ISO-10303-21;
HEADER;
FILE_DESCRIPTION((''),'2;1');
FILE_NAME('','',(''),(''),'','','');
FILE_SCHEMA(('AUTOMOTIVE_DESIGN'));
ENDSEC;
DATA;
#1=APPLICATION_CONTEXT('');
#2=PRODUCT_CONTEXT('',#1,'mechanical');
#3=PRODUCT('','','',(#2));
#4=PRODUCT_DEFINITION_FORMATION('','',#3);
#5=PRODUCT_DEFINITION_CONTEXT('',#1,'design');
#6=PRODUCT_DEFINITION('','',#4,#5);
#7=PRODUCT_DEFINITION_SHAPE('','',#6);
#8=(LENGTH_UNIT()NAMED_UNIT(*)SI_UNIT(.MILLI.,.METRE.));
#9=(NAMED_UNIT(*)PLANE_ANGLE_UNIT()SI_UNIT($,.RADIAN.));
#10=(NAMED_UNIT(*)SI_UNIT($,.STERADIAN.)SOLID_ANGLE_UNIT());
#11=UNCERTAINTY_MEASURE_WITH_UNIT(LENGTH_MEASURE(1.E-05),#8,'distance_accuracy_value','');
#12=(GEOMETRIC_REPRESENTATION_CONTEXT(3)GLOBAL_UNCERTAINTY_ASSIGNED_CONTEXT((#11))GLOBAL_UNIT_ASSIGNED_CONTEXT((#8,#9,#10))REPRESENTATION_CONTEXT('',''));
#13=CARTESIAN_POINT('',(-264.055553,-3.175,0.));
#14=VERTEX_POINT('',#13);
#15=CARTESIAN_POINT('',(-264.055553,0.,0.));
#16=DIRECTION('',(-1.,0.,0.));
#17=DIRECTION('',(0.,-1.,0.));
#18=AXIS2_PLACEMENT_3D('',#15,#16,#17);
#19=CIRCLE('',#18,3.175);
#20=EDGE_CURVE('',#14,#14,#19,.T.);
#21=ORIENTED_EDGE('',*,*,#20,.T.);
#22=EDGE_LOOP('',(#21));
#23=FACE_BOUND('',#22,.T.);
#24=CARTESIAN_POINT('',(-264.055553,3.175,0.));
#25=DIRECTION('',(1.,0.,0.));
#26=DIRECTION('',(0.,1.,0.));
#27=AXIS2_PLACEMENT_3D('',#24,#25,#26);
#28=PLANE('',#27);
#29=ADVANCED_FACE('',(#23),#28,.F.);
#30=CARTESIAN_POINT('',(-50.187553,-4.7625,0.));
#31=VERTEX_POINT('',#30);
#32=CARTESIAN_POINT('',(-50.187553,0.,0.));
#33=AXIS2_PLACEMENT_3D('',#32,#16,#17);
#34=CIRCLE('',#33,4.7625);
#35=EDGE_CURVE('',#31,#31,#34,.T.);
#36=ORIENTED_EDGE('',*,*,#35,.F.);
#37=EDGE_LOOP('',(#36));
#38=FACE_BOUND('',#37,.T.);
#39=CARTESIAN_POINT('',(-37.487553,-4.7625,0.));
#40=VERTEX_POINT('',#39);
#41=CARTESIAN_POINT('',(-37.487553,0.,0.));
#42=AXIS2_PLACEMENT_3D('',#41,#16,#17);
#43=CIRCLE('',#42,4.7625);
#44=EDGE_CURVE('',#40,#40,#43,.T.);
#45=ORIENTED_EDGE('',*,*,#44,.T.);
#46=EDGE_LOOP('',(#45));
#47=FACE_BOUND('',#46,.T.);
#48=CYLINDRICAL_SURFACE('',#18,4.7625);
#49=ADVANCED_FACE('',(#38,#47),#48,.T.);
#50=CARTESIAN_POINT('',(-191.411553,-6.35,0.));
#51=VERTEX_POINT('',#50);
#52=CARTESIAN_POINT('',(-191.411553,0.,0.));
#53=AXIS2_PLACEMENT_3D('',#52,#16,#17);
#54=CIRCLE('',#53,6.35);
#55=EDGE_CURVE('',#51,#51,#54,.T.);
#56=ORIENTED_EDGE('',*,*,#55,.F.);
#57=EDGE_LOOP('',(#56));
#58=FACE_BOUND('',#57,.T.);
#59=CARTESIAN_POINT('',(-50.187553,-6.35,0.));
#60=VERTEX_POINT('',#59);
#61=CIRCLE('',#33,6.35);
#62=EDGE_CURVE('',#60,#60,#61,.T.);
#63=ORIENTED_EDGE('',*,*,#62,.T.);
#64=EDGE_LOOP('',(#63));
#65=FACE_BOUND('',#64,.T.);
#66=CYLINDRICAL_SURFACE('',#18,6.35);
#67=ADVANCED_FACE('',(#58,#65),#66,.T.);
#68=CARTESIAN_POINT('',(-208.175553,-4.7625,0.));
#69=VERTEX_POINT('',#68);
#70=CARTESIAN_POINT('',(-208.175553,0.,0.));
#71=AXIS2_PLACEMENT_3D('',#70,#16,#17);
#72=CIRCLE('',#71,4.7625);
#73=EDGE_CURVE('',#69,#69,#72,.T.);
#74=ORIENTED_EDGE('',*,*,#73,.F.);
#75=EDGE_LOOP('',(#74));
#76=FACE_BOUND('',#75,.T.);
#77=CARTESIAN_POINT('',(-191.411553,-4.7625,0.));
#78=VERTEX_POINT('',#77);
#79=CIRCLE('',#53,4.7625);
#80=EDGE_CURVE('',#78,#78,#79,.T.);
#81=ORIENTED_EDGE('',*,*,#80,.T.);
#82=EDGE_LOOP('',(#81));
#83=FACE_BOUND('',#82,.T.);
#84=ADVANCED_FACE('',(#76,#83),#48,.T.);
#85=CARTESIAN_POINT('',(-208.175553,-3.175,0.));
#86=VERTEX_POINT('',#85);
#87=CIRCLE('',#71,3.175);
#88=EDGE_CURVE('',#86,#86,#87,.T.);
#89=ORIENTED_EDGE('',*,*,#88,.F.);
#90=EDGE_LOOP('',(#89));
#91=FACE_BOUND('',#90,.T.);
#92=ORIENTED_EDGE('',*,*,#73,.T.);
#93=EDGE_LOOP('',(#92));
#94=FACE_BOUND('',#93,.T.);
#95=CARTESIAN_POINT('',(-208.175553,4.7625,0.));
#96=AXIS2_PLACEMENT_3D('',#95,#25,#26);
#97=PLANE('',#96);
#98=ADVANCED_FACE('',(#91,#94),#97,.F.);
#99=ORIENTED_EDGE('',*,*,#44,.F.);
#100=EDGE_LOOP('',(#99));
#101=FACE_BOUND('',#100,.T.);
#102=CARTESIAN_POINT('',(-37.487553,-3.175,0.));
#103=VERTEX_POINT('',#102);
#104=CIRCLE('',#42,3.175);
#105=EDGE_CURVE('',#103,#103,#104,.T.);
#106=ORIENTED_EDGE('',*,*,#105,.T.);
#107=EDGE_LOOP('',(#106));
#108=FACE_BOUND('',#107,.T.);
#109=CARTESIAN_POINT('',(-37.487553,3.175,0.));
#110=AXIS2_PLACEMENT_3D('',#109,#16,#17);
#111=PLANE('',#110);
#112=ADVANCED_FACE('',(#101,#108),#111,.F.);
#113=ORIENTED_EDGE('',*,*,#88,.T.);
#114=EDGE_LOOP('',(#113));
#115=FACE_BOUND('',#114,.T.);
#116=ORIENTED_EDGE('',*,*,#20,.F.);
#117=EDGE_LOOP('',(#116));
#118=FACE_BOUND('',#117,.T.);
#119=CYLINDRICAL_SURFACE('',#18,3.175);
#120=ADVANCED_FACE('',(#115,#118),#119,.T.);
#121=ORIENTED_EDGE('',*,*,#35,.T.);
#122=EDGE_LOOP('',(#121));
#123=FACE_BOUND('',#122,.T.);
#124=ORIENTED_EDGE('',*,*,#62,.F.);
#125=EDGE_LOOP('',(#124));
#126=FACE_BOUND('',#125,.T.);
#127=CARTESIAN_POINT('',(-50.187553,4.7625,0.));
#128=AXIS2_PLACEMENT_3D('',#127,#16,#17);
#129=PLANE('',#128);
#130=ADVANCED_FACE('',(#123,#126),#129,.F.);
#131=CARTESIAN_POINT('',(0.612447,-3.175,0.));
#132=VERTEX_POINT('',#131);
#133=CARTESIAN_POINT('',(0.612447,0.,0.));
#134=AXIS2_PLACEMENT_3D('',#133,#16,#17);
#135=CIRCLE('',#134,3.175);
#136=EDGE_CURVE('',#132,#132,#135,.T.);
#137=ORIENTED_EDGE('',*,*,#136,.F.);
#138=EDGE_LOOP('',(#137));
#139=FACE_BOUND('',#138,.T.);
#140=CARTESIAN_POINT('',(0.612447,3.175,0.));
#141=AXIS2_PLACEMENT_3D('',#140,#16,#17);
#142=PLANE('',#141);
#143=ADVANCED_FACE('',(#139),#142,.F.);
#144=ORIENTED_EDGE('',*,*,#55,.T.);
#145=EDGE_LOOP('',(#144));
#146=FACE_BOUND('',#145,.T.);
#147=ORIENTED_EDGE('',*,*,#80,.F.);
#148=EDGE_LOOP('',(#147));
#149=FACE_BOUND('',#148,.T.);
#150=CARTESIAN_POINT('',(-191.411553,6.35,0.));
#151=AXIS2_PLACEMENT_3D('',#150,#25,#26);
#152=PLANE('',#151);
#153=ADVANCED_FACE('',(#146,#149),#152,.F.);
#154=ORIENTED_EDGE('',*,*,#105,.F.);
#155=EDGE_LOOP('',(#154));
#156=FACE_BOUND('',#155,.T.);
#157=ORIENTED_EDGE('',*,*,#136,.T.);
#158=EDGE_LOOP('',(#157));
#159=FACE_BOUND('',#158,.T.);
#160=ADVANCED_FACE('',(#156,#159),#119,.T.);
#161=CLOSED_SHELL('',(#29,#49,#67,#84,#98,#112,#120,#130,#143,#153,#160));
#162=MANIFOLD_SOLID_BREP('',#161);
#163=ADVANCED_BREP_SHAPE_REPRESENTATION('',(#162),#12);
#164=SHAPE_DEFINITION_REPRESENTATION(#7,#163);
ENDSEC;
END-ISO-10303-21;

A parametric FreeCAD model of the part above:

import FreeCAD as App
import Part
import Sketcher
from FreeCAD import Vector
Q = App.Units.Quantity

doc = App.newDocument("Part")
body = doc.addObject("PartDesign::Body", "Body")

# Sketch on XY plane
sketch1 = body.newObject("Sketcher::SketchObject", "Sketch")
sketch1.AttachmentSupport = (doc.getObject("XY_Plane"), [""])
sketch1.MapMode = "FlatFace"
sketch1.addGeometry(Part.LineSegment(Vector(0.612447, 0, 0), Vector(0.612447, 3.175, 0)), False)
sketch1.addGeometry(Part.LineSegment(Vector(0.612447, 3.175, 0), Vector(-37.487553, 3.175, 0)), False)
sketch1.addGeometry(Part.LineSegment(Vector(-37.487553, 3.175, 0), Vector(-37.487553, 4.7625, 0)), False)
sketch1.addGeometry(Part.LineSegment(Vector(-37.487553, 4.7625, 0), Vector(-50.187553, 4.7625, 0)), False)
sketch1.addGeometry(Part.LineSegment(Vector(-50.187553, 4.7625, 0), Vector(-50.187553, 6.35, 0)), False)
sketch1.addGeometry(Part.LineSegment(Vector(-50.187553, 6.35, 0), Vector(-191.411553, 6.35, 0)), False)
sketch1.addGeometry(Part.LineSegment(Vector(-191.411553, 6.35, 0), Vector(-191.411553, 4.7625, 0)), False)
sketch1.addGeometry(Part.LineSegment(Vector(-191.411553, 4.7625, 0), Vector(-208.175553, 4.7625, 0)), False)
sketch1.addGeometry(Part.LineSegment(Vector(-208.175553, 4.7625, 0), Vector(-208.175553, 3.175, 0)), False)
sketch1.addGeometry(Part.LineSegment(Vector(-208.175553, 3.175, 0), Vector(-264.055553, 3.175, 0)), False)
sketch1.addGeometry(Part.LineSegment(Vector(-264.055553, 3.175, 0), Vector(-264.055553, 0, 0)), False)
sketch1.addGeometry(Part.LineSegment(Vector(-264.055553, 0, 0), Vector(0.612447, 0, 0)), False)
sketch1.addConstraint(Sketcher.Constraint("Coincident", 0, 2, 1, 1))
sketch1.addConstraint(Sketcher.Constraint("Coincident", 1, 2, 2, 1))
sketch1.addConstraint(Sketcher.Constraint("Coincident", 2, 2, 3, 1))
sketch1.addConstraint(Sketcher.Constraint("Coincident", 3, 2, 4, 1))
sketch1.addConstraint(Sketcher.Constraint("Coincident", 4, 2, 5, 1))
sketch1.addConstraint(Sketcher.Constraint("Coincident", 5, 2, 6, 1))
sketch1.addConstraint(Sketcher.Constraint("Coincident", 6, 2, 7, 1))
sketch1.addConstraint(Sketcher.Constraint("Coincident", 7, 2, 8, 1))
sketch1.addConstraint(Sketcher.Constraint("Coincident", 8, 2, 9, 1))
sketch1.addConstraint(Sketcher.Constraint("Coincident", 9, 2, 10, 1))
sketch1.addConstraint(Sketcher.Constraint("Coincident", 10, 2, 11, 1))
sketch1.addConstraint(Sketcher.Constraint("Coincident", 11, 2, 0, 1))
sketch1.addConstraint(Sketcher.Constraint("Vertical", 0))
sketch1.addConstraint(Sketcher.Constraint("Horizontal", 1))
sketch1.addConstraint(Sketcher.Constraint("Vertical", 2))
sketch1.addConstraint(Sketcher.Constraint("Horizontal", 3))
sketch1.addConstraint(Sketcher.Constraint("Vertical", 4))
sketch1.addConstraint(Sketcher.Constraint("Horizontal", 5))
sketch1.addConstraint(Sketcher.Constraint("Vertical", 6))
sketch1.addConstraint(Sketcher.Constraint("Horizontal", 7))
sketch1.addConstraint(Sketcher.Constraint("Vertical", 8))
sketch1.addConstraint(Sketcher.Constraint("Horizontal", 9))
sketch1.addConstraint(Sketcher.Constraint("Vertical", 10))
sketch1.addConstraint(Sketcher.Constraint("Horizontal", 11))
sketch1.addConstraint(Sketcher.Constraint("PointOnObject", 10, 2, -1))
sketch1.addConstraint(Sketcher.Constraint("Horizontal", 3, 2, 6, 2))
sketch1.addConstraint(Sketcher.Constraint("Horizontal", 1, 2, 8, 2))
sketch1.addConstraint(Sketcher.Constraint("Equal", 2, 4))
sketch1.addConstraint(Sketcher.Constraint("DistanceX", 1, 2, 1, 1, Q("1.5 in")))
sketch1.addConstraint(Sketcher.Constraint("DistanceX", 3, 2, 3, 1, Q("0.5 in")))
sketch1.addConstraint(Sketcher.Constraint("DistanceX", 9, 2, 9, 1, Q("2.2 in")))
sketch1.addConstraint(Sketcher.Constraint("DistanceX", 5, 2, 5, 1, Q("5.56 in")))
sketch1.addConstraint(Sketcher.Constraint("DistanceX", 7, 2, 7, 1, Q("0.66 in")))
sketch1.addConstraint(Sketcher.Constraint("DistanceY", 0, 1, 0, 2, Q("0.125 in")))
sketch1.addConstraint(Sketcher.Constraint("DistanceY", 2, 1, 2, 2, Q("0.0625 in")))
sketch1.addConstraint(Sketcher.Constraint("DistanceX", -1, 1, 0, 2, 0.612447))
revolution = body.newObject("PartDesign::Revolution", "Revolution")
revolution.Profile = sketch1
revolution.ReferenceAxis = (sketch1, ["H_Axis"])
revolution.Angle = 360

doc.recompute()
